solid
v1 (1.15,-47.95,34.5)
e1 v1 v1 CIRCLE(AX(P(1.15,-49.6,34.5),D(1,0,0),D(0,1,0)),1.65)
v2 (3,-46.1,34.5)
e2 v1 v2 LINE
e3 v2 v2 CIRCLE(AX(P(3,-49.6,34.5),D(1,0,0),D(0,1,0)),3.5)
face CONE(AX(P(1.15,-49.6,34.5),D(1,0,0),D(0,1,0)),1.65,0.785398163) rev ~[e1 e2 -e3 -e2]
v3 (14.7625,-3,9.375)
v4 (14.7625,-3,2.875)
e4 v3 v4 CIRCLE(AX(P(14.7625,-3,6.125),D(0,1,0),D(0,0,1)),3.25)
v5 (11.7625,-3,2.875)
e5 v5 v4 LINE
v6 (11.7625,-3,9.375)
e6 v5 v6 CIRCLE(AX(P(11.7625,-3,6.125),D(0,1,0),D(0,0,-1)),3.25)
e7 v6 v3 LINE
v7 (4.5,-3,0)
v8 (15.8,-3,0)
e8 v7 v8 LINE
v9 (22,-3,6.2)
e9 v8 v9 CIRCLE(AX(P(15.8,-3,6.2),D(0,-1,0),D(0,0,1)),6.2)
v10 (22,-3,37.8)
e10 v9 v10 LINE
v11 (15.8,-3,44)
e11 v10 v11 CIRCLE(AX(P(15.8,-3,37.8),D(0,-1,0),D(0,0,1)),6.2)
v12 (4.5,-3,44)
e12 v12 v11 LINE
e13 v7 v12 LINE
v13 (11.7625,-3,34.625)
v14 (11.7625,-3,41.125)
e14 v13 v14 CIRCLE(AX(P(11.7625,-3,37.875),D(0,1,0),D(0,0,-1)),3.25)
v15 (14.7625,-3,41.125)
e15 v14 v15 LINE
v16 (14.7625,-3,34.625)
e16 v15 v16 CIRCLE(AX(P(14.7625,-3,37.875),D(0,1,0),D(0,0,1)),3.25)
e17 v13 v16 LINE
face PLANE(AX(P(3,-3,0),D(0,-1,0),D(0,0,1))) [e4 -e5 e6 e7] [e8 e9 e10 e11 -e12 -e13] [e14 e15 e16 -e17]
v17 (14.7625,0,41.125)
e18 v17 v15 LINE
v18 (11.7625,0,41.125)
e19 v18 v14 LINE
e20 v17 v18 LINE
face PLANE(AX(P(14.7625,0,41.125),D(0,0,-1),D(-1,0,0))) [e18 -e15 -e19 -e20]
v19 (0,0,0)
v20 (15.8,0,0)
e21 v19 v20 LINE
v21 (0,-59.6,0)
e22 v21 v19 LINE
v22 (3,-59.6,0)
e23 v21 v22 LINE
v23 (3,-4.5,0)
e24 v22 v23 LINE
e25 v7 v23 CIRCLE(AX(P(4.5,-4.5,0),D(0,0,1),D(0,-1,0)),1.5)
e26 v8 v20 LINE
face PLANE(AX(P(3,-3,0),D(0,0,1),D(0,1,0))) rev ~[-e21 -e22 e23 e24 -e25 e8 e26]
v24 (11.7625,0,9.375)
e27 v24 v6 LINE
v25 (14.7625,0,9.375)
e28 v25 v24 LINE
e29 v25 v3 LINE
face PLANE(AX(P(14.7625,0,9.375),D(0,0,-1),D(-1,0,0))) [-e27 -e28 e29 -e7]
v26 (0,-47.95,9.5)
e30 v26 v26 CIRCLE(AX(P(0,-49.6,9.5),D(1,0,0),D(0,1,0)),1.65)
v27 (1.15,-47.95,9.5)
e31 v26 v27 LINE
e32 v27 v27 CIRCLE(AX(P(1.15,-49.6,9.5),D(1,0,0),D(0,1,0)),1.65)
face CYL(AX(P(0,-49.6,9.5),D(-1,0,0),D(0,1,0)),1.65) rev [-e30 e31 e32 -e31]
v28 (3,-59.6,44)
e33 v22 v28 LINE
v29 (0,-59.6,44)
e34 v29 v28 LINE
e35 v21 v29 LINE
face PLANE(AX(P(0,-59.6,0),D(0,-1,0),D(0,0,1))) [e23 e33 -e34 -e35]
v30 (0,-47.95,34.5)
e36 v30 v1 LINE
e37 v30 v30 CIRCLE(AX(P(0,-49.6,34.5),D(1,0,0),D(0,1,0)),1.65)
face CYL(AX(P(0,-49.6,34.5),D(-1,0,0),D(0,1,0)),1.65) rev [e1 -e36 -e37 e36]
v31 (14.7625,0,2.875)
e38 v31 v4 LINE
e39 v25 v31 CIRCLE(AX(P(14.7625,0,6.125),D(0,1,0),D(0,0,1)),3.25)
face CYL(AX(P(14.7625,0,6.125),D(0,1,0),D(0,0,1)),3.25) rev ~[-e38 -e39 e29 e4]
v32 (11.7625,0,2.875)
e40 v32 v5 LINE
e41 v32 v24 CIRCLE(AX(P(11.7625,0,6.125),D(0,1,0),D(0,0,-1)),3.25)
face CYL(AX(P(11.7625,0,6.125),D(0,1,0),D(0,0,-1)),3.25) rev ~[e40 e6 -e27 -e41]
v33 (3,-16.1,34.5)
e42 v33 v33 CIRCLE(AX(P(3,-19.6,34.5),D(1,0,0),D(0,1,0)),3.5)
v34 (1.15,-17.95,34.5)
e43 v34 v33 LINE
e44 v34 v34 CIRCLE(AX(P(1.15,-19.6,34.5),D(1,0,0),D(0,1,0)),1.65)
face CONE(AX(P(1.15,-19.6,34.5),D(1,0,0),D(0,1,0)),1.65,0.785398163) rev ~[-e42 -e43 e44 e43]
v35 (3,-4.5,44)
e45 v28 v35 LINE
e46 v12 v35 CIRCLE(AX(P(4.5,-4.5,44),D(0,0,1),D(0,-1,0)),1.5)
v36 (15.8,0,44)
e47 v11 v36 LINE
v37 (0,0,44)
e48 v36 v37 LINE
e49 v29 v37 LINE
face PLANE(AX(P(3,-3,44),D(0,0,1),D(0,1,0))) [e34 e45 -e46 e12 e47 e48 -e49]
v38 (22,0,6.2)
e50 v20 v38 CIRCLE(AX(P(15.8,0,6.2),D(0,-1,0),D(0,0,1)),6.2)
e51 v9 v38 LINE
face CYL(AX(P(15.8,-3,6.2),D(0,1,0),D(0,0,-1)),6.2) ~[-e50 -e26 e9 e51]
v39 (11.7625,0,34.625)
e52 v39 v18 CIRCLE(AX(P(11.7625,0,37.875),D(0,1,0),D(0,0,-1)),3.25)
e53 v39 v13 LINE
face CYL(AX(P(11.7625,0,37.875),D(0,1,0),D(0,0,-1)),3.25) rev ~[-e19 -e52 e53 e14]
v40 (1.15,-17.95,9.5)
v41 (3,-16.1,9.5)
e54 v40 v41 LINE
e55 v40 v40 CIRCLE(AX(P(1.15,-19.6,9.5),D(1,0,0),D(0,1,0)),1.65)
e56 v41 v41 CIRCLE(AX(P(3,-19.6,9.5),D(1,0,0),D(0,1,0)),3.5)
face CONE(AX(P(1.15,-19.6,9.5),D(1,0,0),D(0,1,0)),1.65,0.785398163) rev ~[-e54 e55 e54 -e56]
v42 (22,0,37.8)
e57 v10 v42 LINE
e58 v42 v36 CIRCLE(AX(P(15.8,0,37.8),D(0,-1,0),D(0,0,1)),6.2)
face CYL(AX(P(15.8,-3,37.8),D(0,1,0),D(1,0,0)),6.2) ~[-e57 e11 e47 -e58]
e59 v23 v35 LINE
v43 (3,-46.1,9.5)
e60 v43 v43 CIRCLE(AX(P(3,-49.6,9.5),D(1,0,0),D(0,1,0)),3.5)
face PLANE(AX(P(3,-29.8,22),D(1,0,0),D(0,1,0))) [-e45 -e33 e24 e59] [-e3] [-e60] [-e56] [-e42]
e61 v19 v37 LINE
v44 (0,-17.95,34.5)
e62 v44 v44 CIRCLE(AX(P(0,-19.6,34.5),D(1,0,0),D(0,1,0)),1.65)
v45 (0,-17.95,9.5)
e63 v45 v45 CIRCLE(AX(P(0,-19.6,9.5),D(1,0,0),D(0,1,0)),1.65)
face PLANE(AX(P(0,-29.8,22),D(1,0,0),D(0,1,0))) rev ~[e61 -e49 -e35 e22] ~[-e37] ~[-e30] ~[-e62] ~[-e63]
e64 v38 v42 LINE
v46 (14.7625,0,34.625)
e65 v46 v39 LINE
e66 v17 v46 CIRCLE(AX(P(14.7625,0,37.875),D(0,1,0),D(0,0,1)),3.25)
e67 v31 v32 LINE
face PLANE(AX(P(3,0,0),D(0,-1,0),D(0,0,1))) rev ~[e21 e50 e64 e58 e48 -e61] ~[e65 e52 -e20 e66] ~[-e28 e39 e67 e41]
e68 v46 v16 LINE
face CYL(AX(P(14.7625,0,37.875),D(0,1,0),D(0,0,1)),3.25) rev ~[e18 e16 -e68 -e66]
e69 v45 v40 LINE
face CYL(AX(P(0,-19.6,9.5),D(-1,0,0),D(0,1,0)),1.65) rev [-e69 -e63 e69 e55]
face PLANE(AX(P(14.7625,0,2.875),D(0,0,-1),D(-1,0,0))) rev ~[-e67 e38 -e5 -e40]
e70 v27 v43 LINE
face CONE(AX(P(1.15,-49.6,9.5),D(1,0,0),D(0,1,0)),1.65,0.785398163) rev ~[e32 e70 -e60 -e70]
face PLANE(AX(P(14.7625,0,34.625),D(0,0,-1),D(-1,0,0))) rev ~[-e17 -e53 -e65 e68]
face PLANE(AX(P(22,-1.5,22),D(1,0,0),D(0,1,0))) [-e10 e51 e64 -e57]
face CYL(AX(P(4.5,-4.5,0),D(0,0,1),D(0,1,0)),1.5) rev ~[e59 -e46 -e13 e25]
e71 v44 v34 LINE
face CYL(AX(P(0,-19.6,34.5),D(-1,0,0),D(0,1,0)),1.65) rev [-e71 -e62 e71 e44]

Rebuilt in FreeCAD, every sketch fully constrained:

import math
import FreeCAD as App
import Part
import Sketcher

V = App.Vector


def edges_at(feature, points):
    """Names of the edges that pass closest to the given points."""
    edges = feature.Shape.Edges
    near = lambda p: min(range(len(edges)), key=lambda i: edges[i].distToShape(Part.Vertex(*p))[0])
    return sorted({f"Edge{near(p) + 1}" for p in points})


def add_polygon(sketch, points):
    """Adds a closed chain of lines whose ends are joined by coincident constraints."""
    first, n = sketch.GeometryCount, len(points)
    for a, b in zip(points, points[1:] + points[:1]):
        sketch.addGeometry(Part.LineSegment(App.Vector(*a, 0), App.Vector(*b, 0)), False)
    for i in range(n):
        sketch.addConstraint(Sketcher.Constraint("Coincident", first + i, 2, first + (i + 1) % n, 1))

doc = App.newDocument("Part")
body = doc.addObject("PartDesign::Body", "Body")

sketch1 = doc.addObject("Sketcher::SketchObject", "Sketch")
body.addObject(sketch1)
sketch1.AttachmentSupport = (doc.YZ_Plane, [""])
sketch1.MapMode = "FlatFace"
add_polygon(sketch1, [(-59.6, 44), (-59.6, 0), (0, 0), (0, 44)])
sketch1.addGeometry(Part.Circle(V(-49.6, 9.5, 0), V(0, 0, 1), 1.6), False)
sketch1.addGeometry(Part.Circle(V(-19.6, 9.5, 0), V(0, 0, 1), 1.6), False)
sketch1.addGeometry(Part.Circle(V(-49.6, 34.5, 0), V(0, 0, 1), 1.6), False)
sketch1.addGeometry(Part.Circle(V(-19.6, 34.5, 0), V(0, 0, 1), 1.6), False)
sketch1.addConstraint(Sketcher.Constraint("Vertical", 0))
sketch1.addConstraint(Sketcher.Constraint("Horizontal", 1))
sketch1.addConstraint(Sketcher.Constraint("Vertical", 2))
sketch1.addConstraint(Sketcher.Constraint("Horizontal", 3))
sketch1.addConstraint(Sketcher.Constraint("Coincident", 1, 2, -1, 1))
sketch1.addConstraint(Sketcher.Constraint("Equal", 4, 5))
sketch1.addConstraint(Sketcher.Constraint("Equal", 5, 6))
sketch1.addConstraint(Sketcher.Constraint("Equal", 6, 7))
sketch1.addConstraint(Sketcher.Constraint("Horizontal", 4, 3, 5, 3))
sketch1.addConstraint(Sketcher.Constraint("Horizontal", 6, 3, 7, 3))
sketch1.addConstraint(Sketcher.Constraint("Vertical", 4, 3, 6, 3))
sketch1.addConstraint(Sketcher.Constraint("Vertical", 5, 3, 7, 3))
sketch1.addConstraint(Sketcher.Constraint("Diameter", 4, 3.3))
sketch1.addConstraint(Sketcher.Constraint("DistanceY", 0, 2, 0, 1, 44.0))
sketch1.addConstraint(Sketcher.Constraint("DistanceX", 1, 1, 1, 2, 59.6))
sketch1.addConstraint(Sketcher.Constraint("DistanceX", 4, 3, 5, 3, 30.0))
sketch1.addConstraint(Sketcher.Constraint("DistanceY", 4, 3, 6, 3, 25.0))
sketch1.addConstraint(Sketcher.Constraint("DistanceX", 0, 2, 4, 3, 10.0))
sketch1.addConstraint(Sketcher.Constraint("DistanceY", -1, 1, 4, 3, 9.5))
pad1 = doc.addObject("PartDesign::Pad", "Pad")
body.addObject(pad1)
pad1.Profile = sketch1
pad1.Length = 3
doc.recompute()

chamfer = doc.addObject("PartDesign::Chamfer", "Chamfer")
body.addObject(chamfer)
chamfer.Base = (pad1, edges_at(pad1, [
    (3, -51.25, 34.5),
    (3, -21.25, 34.5),
    (3, -51.25, 9.5),
    (3, -21.25, 9.5),
]))
chamfer.Size = 1.85

sketch2 = doc.addObject("Sketcher::SketchObject", "Sketch001")
body.addObject(sketch2)
sketch2.AttachmentSupport = (doc.YZ_Plane, [""])
sketch2.MapMode = "FlatFace"
sketch2.AttachmentOffset = App.Placement(V(0, 0, 3), App.Rotation())
add_polygon(sketch2, [(-3, 44), (-3, 0), (0, 0), (0, 44)])
sketch2.addConstraint(Sketcher.Constraint("Vertical", 0))
sketch2.addConstraint(Sketcher.Constraint("Horizontal", 1))
sketch2.addConstraint(Sketcher.Constraint("Vertical", 2))
sketch2.addConstraint(Sketcher.Constraint("Horizontal", 3))
sketch2.addConstraint(Sketcher.Constraint("Coincident", 1, 2, -1, 1))
sketch2.addConstraint(Sketcher.Constraint("DistanceX", 1, 1, 1, 2, 3.0))
sketch2.addConstraint(Sketcher.Constraint("DistanceY", 0, 2, 0, 1, 44.0))
pad2 = doc.addObject("PartDesign::Pad", "Pad001")
body.addObject(pad2)
pad2.Profile = sketch2
pad2.Length = 19

sketch3 = doc.addObject("Sketcher::SketchObject", "Sketch002")
body.addObject(sketch3)
sketch3.AttachmentSupport = (doc.XZ_Plane, [""])
sketch3.MapMode = "FlatFace"
sketch3.addGeometry(Part.ArcOfCircle(Part.Circle(V(14.8, 6.1, 0), V(0, 0, 1), 3.2), math.radians(-90), math.radians(90)), False)
sketch3.addGeometry(Part.LineSegment(V(14.8, 2.9, 0), V(11.8, 2.9, 0)), False)
sketch3.addGeometry(Part.ArcOfCircle(Part.Circle(V(11.8, 6.1, 0), V(0, 0, 1), 3.2), math.radians(90), math.radians(270)), False)
sketch3.addGeometry(Part.LineSegment(V(11.8, 9.4, 0), V(14.8, 9.4, 0)), False)
sketch3.addGeometry(Part.ArcOfCircle(Part.Circle(V(14.8, 37.9, 0), V(0, 0, 1), 3.2), math.radians(-90), math.radians(90)), False)
sketch3.addGeometry(Part.LineSegment(V(14.8, 34.6, 0), V(11.8, 34.6, 0)), False)
sketch3.addGeometry(Part.ArcOfCircle(Part.Circle(V(11.8, 37.9, 0), V(0, 0, 1), 3.2), math.radians(90), math.radians(270)), False)
sketch3.addGeometry(Part.LineSegment(V(11.8, 41.1, 0), V(14.8, 41.1, 0)), False)
sketch3.addConstraint(Sketcher.Constraint("Tangent", 0, 1, 1, 1))
sketch3.addConstraint(Sketcher.Constraint("Tangent", 1, 2, 2, 2))
sketch3.addConstraint(Sketcher.Constraint("Tangent", 2, 1, 3, 1))
sketch3.addConstraint(Sketcher.Constraint("Tangent", 3, 2, 0, 2))
sketch3.addConstraint(Sketcher.Constraint("Tangent", 4, 1, 5, 1))
sketch3.addConstraint(Sketcher.Constraint("Tangent", 5, 2, 6, 2))
sketch3.addConstraint(Sketcher.Constraint("Tangent", 6, 1, 7, 1))
sketch3.addConstraint(Sketcher.Constraint("Tangent", 7, 2, 4, 2))
sketch3.addConstraint(Sketcher.Constraint("Horizontal", 1))
sketch3.addConstraint(Sketcher.Constraint("Horizontal", 3))
sketch3.addConstraint(Sketcher.Constraint("Horizontal", 5))
sketch3.addConstraint(Sketcher.Constraint("Horizontal", 7))
sketch3.addConstraint(Sketcher.Constraint("Equal", 2, 4))
sketch3.addConstraint(Sketcher.Constraint("Vertical", 0, 3, 4, 3))
sketch3.addConstraint(Sketcher.Constraint("Vertical", 2, 3, 6, 3))
sketch3.addConstraint(Sketcher.Constraint("DistanceX", 1, 2, 1, 1, 3.0))
sketch3.addConstraint(Sketcher.Constraint("Radius", 0, 3.25))
sketch3.addConstraint(Sketcher.Constraint("DistanceY", 0, 1, 4, 3, 35.0))
sketch3.addConstraint(Sketcher.Constraint("DistanceY", -1, 1, 0, 3, 6.125))
sketch3.addConstraint(Sketcher.Constraint("DistanceX", -1, 1, 0, 3, 14.7625))
pocket1 = doc.addObject("PartDesign::Pocket", "Pocket")
body.addObject(pocket1)
pocket1.Profile = sketch3
pocket1.Type = "ThroughAll"
pocket1.Reversed = True
doc.recompute()

fillet = doc.addObject("PartDesign::Fillet", "Fillet")
body.addObject(fillet)
fillet.Base = (pocket1, edges_at(pocket1, [(3, -3, 22)]))
fillet.Radius = 1.5
doc.recompute()

fillet2 = doc.addObject("PartDesign::Fillet", "Fillet001")
body.addObject(fillet2)
fillet2.Base = (fillet, edges_at(fillet, [(22, -1.5, 44), (22, -1.5, 0)]))
fillet2.Radius = 6.2

doc.recompute()
